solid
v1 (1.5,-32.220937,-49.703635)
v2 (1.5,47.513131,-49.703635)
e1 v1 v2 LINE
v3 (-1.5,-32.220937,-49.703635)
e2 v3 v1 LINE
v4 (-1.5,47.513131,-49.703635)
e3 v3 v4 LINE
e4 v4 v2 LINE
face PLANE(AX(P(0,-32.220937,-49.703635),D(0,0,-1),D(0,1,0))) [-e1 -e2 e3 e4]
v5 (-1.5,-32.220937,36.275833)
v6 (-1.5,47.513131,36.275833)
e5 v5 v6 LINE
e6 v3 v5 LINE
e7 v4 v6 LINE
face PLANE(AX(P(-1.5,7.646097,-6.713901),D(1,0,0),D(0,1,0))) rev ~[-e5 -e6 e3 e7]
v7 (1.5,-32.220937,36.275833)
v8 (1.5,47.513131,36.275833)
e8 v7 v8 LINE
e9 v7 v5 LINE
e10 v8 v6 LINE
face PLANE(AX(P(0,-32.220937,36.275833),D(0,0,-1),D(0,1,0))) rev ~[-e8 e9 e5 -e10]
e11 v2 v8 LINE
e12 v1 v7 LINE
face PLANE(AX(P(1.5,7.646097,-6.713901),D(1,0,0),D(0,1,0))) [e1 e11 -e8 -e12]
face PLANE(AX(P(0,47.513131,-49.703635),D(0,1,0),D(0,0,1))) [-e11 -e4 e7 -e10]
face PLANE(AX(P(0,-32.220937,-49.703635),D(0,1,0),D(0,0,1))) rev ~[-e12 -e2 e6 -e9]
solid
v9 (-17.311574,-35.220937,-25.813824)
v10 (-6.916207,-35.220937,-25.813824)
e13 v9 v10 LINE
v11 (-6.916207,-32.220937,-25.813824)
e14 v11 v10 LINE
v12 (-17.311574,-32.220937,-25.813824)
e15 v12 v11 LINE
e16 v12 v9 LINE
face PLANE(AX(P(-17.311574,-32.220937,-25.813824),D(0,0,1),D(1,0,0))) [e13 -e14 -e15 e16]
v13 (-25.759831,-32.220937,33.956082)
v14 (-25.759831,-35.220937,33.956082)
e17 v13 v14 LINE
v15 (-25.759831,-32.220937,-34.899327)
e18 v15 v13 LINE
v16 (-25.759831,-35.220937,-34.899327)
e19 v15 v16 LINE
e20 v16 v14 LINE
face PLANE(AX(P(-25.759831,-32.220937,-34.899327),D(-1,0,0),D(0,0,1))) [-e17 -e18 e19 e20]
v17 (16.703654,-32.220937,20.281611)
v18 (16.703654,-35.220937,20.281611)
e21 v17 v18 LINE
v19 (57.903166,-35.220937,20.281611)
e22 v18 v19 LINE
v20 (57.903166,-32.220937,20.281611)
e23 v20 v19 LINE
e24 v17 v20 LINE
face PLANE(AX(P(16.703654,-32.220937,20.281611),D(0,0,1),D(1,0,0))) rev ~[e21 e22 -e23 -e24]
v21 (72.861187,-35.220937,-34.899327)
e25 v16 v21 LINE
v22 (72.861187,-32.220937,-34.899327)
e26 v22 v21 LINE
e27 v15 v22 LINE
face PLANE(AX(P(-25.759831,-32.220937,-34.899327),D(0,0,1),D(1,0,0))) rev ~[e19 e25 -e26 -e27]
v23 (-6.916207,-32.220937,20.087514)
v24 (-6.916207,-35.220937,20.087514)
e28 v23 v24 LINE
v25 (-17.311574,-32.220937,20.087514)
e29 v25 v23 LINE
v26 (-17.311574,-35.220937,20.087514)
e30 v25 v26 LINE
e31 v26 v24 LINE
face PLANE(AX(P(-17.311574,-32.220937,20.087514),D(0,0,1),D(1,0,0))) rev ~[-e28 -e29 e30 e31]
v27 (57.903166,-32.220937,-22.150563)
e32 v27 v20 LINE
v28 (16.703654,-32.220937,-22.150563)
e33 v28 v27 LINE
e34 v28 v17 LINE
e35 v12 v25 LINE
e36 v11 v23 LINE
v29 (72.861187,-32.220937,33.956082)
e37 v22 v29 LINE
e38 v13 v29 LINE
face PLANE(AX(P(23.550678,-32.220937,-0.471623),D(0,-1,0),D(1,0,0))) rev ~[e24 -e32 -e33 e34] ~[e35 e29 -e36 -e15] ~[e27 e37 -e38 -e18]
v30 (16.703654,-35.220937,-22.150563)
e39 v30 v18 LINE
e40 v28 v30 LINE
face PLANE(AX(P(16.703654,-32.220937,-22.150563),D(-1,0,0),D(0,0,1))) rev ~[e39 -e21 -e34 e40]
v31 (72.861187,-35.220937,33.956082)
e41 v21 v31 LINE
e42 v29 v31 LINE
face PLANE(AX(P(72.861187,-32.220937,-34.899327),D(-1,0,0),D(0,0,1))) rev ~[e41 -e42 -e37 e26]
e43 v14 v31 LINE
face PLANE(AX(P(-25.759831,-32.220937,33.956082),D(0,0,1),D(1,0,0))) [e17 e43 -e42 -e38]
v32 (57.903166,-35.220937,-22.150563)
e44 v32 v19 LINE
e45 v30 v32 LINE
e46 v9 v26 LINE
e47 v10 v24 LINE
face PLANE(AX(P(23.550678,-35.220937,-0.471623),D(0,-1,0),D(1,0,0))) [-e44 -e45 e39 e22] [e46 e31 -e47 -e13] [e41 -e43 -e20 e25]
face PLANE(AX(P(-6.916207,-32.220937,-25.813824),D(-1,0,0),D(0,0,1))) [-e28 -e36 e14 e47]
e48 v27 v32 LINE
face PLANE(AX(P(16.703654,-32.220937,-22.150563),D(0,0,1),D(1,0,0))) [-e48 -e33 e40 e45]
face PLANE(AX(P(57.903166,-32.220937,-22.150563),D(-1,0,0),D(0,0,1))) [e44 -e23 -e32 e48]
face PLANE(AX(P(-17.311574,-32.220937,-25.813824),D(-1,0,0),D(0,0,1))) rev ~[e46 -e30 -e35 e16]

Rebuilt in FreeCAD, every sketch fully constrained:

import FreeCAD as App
import Part
import Sketcher
Q = App.Units.Quantity


def add_polygon(sketch, points):
    """Adds a closed chain of lines whose ends are joined by coincident constraints."""
    first, n = sketch.GeometryCount, len(points)
    for a, b in zip(points, points[1:] + points[:1]):
        sketch.addGeometry(Part.LineSegment(App.Vector(*a, 0), App.Vector(*b, 0)), False)
    for i in range(n):
        sketch.addConstraint(Sketcher.Constraint("Coincident", first + i, 2, first + (i + 1) % n, 1))

doc = App.newDocument("Part")
body = doc.addObject("PartDesign::Body", "Body")

sketch1 = body.newObject("Sketcher::SketchObject", "Sketch")
sketch1.AttachmentSupport = (doc.getObject("YZ_Plane"), [""])
sketch1.MapMode = "FlatFace"
add_polygon(sketch1, [(-32, 36), (-32, -50), (48, -50), (48, 36)])
sketch1.addConstraint([
    Sketcher.Constraint("Vertical", 0),
    Sketcher.Constraint("Horizontal", 1),
    Sketcher.Constraint("Vertical", 2),
    Sketcher.Constraint("Horizontal", 3),
    Sketcher.Constraint("DistanceX", 1, 1, 1, 2, Q("79.734068 mm")),
    Sketcher.Constraint("DistanceY", 0, 2, 0, 1, Q("85.979469 mm")),
    Sketcher.Constraint("DistanceX", -1, 1, 1, 2, Q("47.513131 mm")),
    Sketcher.Constraint("DistanceY", 0, 2, -1, 1, Q("49.703635 mm")),
])
pad1 = body.newObject("PartDesign::Pad", "Pad")
pad1.Profile = sketch1
pad1.Length = 3
pad1.Midplane = True
body2 = doc.addObject("PartDesign::Body", "Body001")

sketch2 = body2.newObject("Sketcher::SketchObject", "Sketch001")
sketch2.AttachmentSupport = (doc.getObject("XZ_Plane001"), [""])
sketch2.MapMode = "FlatFace"
sketch2.AttachmentOffset = App.Placement(App.Vector(0, 0, 32.220937), App.Rotation())
add_polygon(sketch2, [(-26, 34), (-26, -35), (73, -35), (73, 34)])
add_polygon(sketch2, [(-7, -26), (-17, -26), (-17, 20), (-7, 20)])
add_polygon(sketch2, [(58, -22), (17, -22), (17, 20), (58, 20)])
sketch2.addConstraint([
    Sketcher.Constraint("Vertical", 0),
    Sketcher.Constraint("Horizontal", 1),
    Sketcher.Constraint("Vertical", 2),
    Sketcher.Constraint("Horizontal", 3),
    Sketcher.Constraint("Horizontal", 4),
    Sketcher.Constraint("Vertical", 5),
    Sketcher.Constraint("Horizontal", 6),
    Sketcher.Constraint("Vertical", 7),
    Sketcher.Constraint("Horizontal", 8),
    Sketcher.Constraint("Vertical", 9),
    Sketcher.Constraint("Horizontal", 10),
    Sketcher.Constraint("Vertical", 11),
    Sketcher.Constraint("DistanceY", 0, 2, 0, 1, Q("68.855409 mm")),
    Sketcher.Constraint("DistanceX", 1, 1, 1, 2, Q("98.621018 mm")),
    Sketcher.Constraint("DistanceX", 4, 2, 4, 1, Q("10.395367 mm")),
    Sketcher.Constraint("DistanceX", 8, 2, 8, 1, Q("41.199513 mm")),
    Sketcher.Constraint("DistanceY", 5, 1, 5, 2, Q("45.901338 mm")),
    Sketcher.Constraint("DistanceY", 9, 1, 9, 2, Q("42.432174 mm")),
    Sketcher.Constraint("DistanceX", 0, 2, -1, 1, Q("25.759831 mm")),
    Sketcher.Constraint("DistanceY", -1, 1, 2, 2, Q("33.956082 mm")),
    Sketcher.Constraint("DistanceY", -1, 1, 9, 2, Q("20.281611 mm")),
    Sketcher.Constraint("DistanceX", 4, 2, 1, 2, Q("90.172762 mm")),
    Sketcher.Constraint("DistanceY", 0, 2, 5, 2, Q("54.986841 mm")),
    Sketcher.Constraint("DistanceX", 7, 2, 8, 2, Q("23.619861 mm")),
])
pad2 = body2.newObject("PartDesign::Pad", "Pad001")
pad2.Profile = sketch2
pad2.Length = 3

doc.recompute()
